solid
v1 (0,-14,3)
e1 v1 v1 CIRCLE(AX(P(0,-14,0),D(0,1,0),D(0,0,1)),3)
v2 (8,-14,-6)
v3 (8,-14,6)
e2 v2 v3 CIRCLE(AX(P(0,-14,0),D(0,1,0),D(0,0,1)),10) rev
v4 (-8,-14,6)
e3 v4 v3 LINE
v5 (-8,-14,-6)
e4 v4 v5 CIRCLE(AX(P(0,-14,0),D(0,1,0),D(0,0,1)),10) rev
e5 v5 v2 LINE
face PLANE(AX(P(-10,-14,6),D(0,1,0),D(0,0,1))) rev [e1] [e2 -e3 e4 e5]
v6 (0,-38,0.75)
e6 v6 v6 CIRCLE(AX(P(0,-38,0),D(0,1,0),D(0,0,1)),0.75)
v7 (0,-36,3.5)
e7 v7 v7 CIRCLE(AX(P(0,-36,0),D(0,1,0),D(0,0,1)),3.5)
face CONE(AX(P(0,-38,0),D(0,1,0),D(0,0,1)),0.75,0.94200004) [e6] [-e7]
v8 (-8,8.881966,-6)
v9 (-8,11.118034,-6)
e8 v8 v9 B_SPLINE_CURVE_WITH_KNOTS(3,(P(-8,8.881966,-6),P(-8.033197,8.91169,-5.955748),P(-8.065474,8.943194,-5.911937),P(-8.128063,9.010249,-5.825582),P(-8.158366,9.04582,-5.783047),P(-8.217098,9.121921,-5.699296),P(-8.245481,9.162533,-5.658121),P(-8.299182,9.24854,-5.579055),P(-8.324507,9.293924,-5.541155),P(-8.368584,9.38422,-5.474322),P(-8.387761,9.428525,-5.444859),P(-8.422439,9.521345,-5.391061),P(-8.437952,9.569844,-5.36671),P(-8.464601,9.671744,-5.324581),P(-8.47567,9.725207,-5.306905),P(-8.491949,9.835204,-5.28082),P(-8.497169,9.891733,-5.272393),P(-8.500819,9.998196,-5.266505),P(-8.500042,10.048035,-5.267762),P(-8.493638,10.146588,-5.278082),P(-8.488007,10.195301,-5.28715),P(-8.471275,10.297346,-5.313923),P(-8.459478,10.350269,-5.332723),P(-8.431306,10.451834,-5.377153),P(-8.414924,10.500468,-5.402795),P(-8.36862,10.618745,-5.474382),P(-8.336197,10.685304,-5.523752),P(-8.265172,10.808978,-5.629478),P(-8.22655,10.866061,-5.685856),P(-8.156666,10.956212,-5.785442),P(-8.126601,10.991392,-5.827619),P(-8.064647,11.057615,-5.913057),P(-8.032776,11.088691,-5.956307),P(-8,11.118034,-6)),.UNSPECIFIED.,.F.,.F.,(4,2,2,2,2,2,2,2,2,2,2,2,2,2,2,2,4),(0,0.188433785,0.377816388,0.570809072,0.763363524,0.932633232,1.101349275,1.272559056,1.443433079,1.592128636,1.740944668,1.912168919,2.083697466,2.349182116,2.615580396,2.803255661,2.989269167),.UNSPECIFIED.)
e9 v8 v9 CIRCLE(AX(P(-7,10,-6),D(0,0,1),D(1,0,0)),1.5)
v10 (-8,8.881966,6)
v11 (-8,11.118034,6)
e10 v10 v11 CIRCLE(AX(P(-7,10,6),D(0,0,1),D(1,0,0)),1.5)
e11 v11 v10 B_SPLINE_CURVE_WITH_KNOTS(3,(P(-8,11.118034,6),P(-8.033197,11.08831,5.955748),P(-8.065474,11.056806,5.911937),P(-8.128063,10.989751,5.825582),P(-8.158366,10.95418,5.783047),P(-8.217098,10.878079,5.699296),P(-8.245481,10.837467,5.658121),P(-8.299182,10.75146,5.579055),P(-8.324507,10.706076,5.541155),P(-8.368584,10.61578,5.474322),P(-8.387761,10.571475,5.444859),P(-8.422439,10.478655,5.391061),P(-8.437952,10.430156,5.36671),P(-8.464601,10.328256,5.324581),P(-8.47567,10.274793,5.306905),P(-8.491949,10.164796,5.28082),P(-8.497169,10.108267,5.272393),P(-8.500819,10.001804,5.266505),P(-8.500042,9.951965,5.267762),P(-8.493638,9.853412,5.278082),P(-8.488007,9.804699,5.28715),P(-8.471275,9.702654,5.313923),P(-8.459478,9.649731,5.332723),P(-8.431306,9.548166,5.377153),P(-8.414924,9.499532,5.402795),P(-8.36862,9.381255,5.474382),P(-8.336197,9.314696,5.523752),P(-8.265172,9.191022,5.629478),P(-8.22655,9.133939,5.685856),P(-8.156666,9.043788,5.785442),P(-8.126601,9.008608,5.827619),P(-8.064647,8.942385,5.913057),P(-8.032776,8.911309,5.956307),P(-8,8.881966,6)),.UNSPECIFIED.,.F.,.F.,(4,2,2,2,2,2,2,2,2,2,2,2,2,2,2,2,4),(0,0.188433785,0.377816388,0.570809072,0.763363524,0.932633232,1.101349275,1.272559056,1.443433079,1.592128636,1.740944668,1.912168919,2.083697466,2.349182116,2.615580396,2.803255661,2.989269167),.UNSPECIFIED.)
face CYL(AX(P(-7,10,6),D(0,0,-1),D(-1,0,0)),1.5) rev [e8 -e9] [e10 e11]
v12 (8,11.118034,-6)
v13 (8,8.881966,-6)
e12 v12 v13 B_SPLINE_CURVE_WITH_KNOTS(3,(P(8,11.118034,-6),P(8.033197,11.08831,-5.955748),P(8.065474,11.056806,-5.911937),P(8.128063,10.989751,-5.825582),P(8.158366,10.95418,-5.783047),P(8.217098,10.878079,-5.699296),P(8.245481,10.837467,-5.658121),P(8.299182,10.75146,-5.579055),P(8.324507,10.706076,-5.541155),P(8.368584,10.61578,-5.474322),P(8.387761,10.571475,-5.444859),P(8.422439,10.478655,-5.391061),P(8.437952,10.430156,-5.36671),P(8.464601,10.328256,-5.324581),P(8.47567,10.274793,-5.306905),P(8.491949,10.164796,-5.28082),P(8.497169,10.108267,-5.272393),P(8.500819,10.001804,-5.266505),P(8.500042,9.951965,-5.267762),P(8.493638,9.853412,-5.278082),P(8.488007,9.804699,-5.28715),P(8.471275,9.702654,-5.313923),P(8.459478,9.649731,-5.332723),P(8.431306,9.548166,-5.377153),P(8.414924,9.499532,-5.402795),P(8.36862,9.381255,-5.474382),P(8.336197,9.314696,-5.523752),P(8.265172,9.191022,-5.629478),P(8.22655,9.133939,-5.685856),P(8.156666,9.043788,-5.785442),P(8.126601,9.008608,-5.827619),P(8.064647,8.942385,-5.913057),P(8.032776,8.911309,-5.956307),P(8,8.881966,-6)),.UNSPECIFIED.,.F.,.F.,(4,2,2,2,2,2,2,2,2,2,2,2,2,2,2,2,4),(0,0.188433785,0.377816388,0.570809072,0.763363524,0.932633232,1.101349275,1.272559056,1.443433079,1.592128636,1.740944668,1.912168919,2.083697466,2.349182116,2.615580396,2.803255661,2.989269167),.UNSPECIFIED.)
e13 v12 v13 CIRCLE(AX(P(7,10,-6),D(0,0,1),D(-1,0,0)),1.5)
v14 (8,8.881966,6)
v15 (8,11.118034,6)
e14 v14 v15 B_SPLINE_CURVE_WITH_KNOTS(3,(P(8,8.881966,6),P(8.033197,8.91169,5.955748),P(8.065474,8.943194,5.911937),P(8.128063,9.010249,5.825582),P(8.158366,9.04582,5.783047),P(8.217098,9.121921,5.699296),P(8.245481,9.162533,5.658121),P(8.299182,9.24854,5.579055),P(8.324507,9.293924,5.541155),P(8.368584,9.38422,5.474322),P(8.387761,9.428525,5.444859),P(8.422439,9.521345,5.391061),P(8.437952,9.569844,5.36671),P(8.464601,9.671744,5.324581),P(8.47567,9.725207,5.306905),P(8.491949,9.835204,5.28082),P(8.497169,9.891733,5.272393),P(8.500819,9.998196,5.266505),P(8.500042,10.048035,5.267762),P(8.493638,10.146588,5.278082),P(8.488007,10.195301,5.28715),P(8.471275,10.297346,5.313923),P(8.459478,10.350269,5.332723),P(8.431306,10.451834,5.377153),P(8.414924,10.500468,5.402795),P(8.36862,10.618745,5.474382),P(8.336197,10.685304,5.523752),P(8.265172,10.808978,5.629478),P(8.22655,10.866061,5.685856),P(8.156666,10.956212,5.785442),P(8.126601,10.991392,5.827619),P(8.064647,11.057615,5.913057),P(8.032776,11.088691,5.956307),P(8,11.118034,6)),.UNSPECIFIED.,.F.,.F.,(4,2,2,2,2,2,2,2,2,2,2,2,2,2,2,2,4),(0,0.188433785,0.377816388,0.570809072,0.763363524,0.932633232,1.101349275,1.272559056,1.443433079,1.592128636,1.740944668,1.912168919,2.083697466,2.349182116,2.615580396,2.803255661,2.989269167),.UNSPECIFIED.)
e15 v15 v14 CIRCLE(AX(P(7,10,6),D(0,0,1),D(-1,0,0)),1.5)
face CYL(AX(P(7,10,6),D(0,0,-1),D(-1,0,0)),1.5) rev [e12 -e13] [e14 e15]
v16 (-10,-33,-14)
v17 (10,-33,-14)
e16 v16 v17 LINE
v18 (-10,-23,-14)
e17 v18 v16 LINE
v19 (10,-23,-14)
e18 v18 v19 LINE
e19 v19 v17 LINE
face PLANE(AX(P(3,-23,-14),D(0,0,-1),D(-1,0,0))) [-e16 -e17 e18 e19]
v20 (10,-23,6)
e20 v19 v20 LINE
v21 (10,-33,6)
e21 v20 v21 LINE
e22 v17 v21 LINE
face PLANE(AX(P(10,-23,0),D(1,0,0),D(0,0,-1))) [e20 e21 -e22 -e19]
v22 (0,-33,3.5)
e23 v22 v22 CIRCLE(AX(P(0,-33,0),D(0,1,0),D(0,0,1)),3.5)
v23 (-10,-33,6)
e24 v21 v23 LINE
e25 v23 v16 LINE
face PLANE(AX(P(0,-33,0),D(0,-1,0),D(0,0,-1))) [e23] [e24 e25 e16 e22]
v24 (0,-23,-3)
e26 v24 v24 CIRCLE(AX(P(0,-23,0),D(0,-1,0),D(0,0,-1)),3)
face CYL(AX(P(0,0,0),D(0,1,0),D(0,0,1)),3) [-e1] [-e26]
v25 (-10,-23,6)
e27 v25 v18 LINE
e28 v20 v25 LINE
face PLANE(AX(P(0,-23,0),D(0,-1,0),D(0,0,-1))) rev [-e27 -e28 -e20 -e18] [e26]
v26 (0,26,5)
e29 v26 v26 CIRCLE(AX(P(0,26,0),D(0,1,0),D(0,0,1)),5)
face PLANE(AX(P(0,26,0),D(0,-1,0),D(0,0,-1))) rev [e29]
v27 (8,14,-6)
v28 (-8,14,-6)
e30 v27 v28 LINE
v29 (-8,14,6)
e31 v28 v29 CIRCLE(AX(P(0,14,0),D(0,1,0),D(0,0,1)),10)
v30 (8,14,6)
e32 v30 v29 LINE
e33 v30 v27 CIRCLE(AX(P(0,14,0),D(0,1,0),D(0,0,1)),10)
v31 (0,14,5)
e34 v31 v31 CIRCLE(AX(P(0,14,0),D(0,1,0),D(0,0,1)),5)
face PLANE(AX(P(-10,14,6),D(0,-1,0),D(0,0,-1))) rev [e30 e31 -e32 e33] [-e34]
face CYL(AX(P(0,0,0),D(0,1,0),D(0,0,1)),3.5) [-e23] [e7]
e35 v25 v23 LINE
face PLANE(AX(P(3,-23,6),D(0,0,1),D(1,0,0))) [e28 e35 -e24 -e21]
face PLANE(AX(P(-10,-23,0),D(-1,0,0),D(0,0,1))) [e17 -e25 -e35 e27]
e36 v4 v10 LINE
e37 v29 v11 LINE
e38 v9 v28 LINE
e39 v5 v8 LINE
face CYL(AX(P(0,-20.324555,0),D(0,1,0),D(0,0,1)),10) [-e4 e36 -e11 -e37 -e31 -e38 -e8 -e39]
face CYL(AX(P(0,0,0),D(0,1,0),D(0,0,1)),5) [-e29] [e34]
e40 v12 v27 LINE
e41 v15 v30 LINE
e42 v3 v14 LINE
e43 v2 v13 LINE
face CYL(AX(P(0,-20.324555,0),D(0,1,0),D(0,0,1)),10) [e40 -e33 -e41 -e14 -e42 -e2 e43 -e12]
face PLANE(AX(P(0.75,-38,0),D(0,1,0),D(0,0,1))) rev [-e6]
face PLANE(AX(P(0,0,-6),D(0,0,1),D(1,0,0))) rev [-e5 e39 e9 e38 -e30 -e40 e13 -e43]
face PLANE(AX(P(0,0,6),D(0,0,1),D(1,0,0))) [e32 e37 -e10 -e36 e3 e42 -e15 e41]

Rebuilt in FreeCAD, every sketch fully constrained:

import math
import FreeCAD as App
import Part
import Sketcher
from FreeCAD import Vector
Q = App.Units.Quantity

doc = App.newDocument("Part")
body = doc.addObject("PartDesign::Body", "Body")

# Sketch on XY plane
sketch1 = body.newObject("Sketcher::SketchObject", "Sketch")
sketch1.AttachmentSupport = (doc.getObject("XY_Plane"), [""])
sketch1.MapMode = "FlatFace"
sketch1.addGeometry([
    Part.LineSegment(Vector(-10, 14, 0), Vector(-10, -14, 0)),  # 0
    Part.LineSegment(Vector(-10, -14, 0), Vector(10, -14, 0)),  # 1
    Part.LineSegment(Vector(10, -14, 0), Vector(10, 14, 0)),  # 2
    Part.LineSegment(Vector(10, 14, 0), Vector(-10, 14, 0)),  # 3
    Part.Circle(Vector(-7, 10, 0), Vector(0, 0, 1), 1.5),  # 4
    Part.Circle(Vector(7, 10, 0), Vector(0, 0, 1), 1.5),  # 5
], False)
sketch1.addConstraint([
    Sketcher.Constraint("Coincident", 0, 2, 1, 1),
    Sketcher.Constraint("Coincident", 1, 2, 2, 1),
    Sketcher.Constraint("Coincident", 2, 2, 3, 1),
    Sketcher.Constraint("Coincident", 3, 2, 0, 1),
    Sketcher.Constraint("Vertical", 0),
    Sketcher.Constraint("Horizontal", 1),
    Sketcher.Constraint("Vertical", 2),
    Sketcher.Constraint("Horizontal", 3),
    Sketcher.Constraint("Equal", 4, 5),
    Sketcher.Constraint("Symmetric", 0, 2, 2, 2, -1, 1),
    Sketcher.Constraint("Symmetric", 4, 3, 5, 3, -2),
    Sketcher.Constraint("Diameter", 4, Q("3 mm")),
    Sketcher.Constraint("DistanceX", 1, 1, 1, 2, Q("20 mm")),
    Sketcher.Constraint("DistanceY", 0, 2, 0, 1, Q("28 mm")),
    Sketcher.Constraint("DistanceX", 4, 3, -1, 1, Q("7 mm")),
    Sketcher.Constraint("DistanceY", -1, 1, 4, 3, Q("10 mm")),
])
pad1 = body.newObject("PartDesign::Pad", "Pad")
pad1.Profile = sketch1
pad1.Length = 12
pad1.Midplane = True

# Sketch on XY plane
sketch2 = body.newObject("Sketcher::SketchObject", "Sketch001")
sketch2.AttachmentSupport = (doc.getObject("XY_Plane"), [""])
sketch2.MapMode = "FlatFace"
sketch2.addGeometry([
    Part.LineSegment(Vector(3, -33, 0), Vector(3, -14, 0)),  # 0
    Part.LineSegment(Vector(3, -14, 0), Vector(0, -14, 0)),  # 1
    Part.LineSegment(Vector(0, -14, 0), Vector(0, -38, 0)),  # 2
    Part.LineSegment(Vector(0, -38, 0), Vector(0.8, -38, 0)),  # 3
    Part.LineSegment(Vector(0.8, -38, 0), Vector(3.5, -36, 0)),  # 4
    Part.LineSegment(Vector(3.5, -36, 0), Vector(3.5, -33, 0)),  # 5
    Part.LineSegment(Vector(3.5, -33, 0), Vector(3, -33, 0)),  # 6
    Part.LineSegment(Vector(0, 26, 0), Vector(0, 14, 0)),  # 7
    Part.LineSegment(Vector(0, 14, 0), Vector(5, 14, 0)),  # 8
    Part.LineSegment(Vector(5, 14, 0), Vector(5, 26, 0)),  # 9
    Part.LineSegment(Vector(5, 26, 0), Vector(0, 26, 0)),  # 10
], False)
sketch2.addConstraint([
    Sketcher.Constraint("Coincident", 0, 2, 1, 1),
    Sketcher.Constraint("Coincident", 1, 2, 2, 1),
    Sketcher.Constraint("Coincident", 2, 2, 3, 1),
    Sketcher.Constraint("Coincident", 3, 2, 4, 1),
    Sketcher.Constraint("Coincident", 4, 2, 5, 1),
    Sketcher.Constraint("Coincident", 5, 2, 6, 1),
    Sketcher.Constraint("Coincident", 6, 2, 0, 1),
    Sketcher.Constraint("Coincident", 7, 2, 8, 1),
    Sketcher.Constraint("Coincident", 8, 2, 9, 1),
    Sketcher.Constraint("Coincident", 9, 2, 10, 1),
    Sketcher.Constraint("Coincident", 10, 2, 7, 1),
    Sketcher.Constraint("Vertical", 0),
    Sketcher.Constraint("Horizontal", 1),
    Sketcher.Constraint("Vertical", 2),
    Sketcher.Constraint("Horizontal", 3),
    Sketcher.Constraint("Vertical", 5),
    Sketcher.Constraint("Horizontal", 6),
    Sketcher.Constraint("Vertical", 7),
    Sketcher.Constraint("Horizontal", 8),
    Sketcher.Constraint("Vertical", 9),
    Sketcher.Constraint("Horizontal", 10),
    Sketcher.Constraint("Symmetric", 1, 2, 7, 2, -1, 1),
    Sketcher.Constraint("PointOnObject", 1, 2, -2),
    Sketcher.Constraint("Equal", 1, 5),
    Sketcher.Constraint("DistanceX", 1, 2, 1, 1, Q("3 mm")),
    Sketcher.Constraint("DistanceX", 8, 1, 8, 2, Q("5 mm")),
    Sketcher.Constraint("DistanceY", 0, 1, 0, 2, Q("19 mm")),
    Sketcher.Constraint("DistanceY", 2, 2, 2, 1, Q("24 mm")),
    Sketcher.Constraint("DistanceY", 7, 2, 7, 1, Q("12 mm")),
    Sketcher.Constraint("DistanceX", 6, 2, 6, 1, Q("0.5 mm")),
    Sketcher.Constraint("DistanceY", 0, 2, -1, 1, Q("14 mm")),
    Sketcher.Constraint("DistanceX", 3, 1, 3, 2, Q("0.75 mm")),
])
revolution = body.newObject("PartDesign::Revolution", "Revolution")
revolution.Profile = sketch2
revolution.ReferenceAxis = (sketch2, ["V_Axis"])
revolution.Angle = 360

# Sketch on XZ plane
sketch3 = body.newObject("Sketcher::SketchObject", "Sketch002")
sketch3.AttachmentSupport = (doc.getObject("XZ_Plane"), [""])
sketch3.MapMode = "FlatFace"
sketch3.AttachmentOffset = App.Placement(Vector(0, 0, 33), App.Rotation())
sketch3.addGeometry([
    Part.LineSegment(Vector(-10, -14, 0), Vector(-10, 6, 0)),
    Part.LineSegment(Vector(-10, 6, 0), Vector(10, 6, 0)),
    Part.LineSegment(Vector(10, 6, 0), Vector(10, -14, 0)),
    Part.LineSegment(Vector(10, -14, 0), Vector(-10, -14, 0)),
], False)
sketch3.addConstraint([
    Sketcher.Constraint("Coincident", 0, 2, 1, 1),
    Sketcher.Constraint("Coincident", 1, 2, 2, 1),
    Sketcher.Constraint("Coincident", 2, 2, 3, 1),
    Sketcher.Constraint("Coincident", 3, 2, 0, 1),
    Sketcher.Constraint("Vertical", 0),
    Sketcher.Constraint("Horizontal", 1),
    Sketcher.Constraint("Vertical", 2),
    Sketcher.Constraint("Horizontal", 3),
    Sketcher.Constraint("Equal", 3, 0),
    Sketcher.Constraint("DistanceX", 1, 1, 1, 2, Q("20 mm")),
    Sketcher.Constraint("DistanceX", 0, 2, -1, 1, Q("10 mm")),
    Sketcher.Constraint("DistanceY", -1, 1, 0, 2, Q("6 mm")),
])
pad2 = body.newObject("PartDesign::Pad", "Pad001")
pad2.Profile = sketch3
pad2.Length = 10
pad2.Reversed = True

# Sketch on XZ plane
sketch4 = body.newObject("Sketcher::SketchObject", "Sketch003")
sketch4.AttachmentSupport = (doc.getObject("XZ_Plane"), [""])
sketch4.MapMode = "FlatFace"
sketch4.AttachmentOffset = App.Placement(Vector(0, 0, -14), App.Rotation())
sketch4.addGeometry([
    Part.ArcOfCircle(Part.Circle(Vector(0, 0, 0), Vector(0, 0, 1), 10), math.radians(180), math.radians(217)),  # 0
    Part.LineSegment(Vector(-8, -6, 0), Vector(-10, -6, 0)),  # 1
    Part.LineSegment(Vector(-10, -6, 0), Vector(-10, 0, 0)),  # 2
    Part.ArcOfCircle(Part.Circle(Vector(0, 0, 0), Vector(0, 0, 1), 10), math.radians(143), math.radians(180)),  # 3
    Part.LineSegment(Vector(-10, 0, 0), Vector(-10, 6, 0)),  # 4
    Part.LineSegment(Vector(-10, 6, 0), Vector(-8, 6, 0)),  # 5
    Part.LineSegment(Vector(10, 6, 0), Vector(10, 0, 0)),  # 6
    Part.ArcOfCircle(Part.Circle(Vector(0, 0, 0), Vector(0, 0, 1), 10), math.radians(0), math.radians(37)),  # 7
    Part.LineSegment(Vector(8, 6, 0), Vector(10, 6, 0)),  # 8
    Part.LineSegment(Vector(10, -6, 0), Vector(8, -6, 0)),  # 9
    Part.ArcOfCircle(Part.Circle(Vector(0, 0, 0), Vector(0, 0, 1), 10), math.radians(-37), math.radians(0)),  # 10
    Part.LineSegment(Vector(10, 0, 0), Vector(10, -6, 0)),  # 11
], False)
sketch4.addConstraint([
    Sketcher.Constraint("Coincident", 0, 2, 1, 1),
    Sketcher.Constraint("Coincident", 1, 2, 2, 1),
    Sketcher.Constraint("Tangent", 2, 2, 0, 1),
    Sketcher.Constraint("Tangent", 3, 2, 4, 1),
    Sketcher.Constraint("Coincident", 4, 2, 5, 1),
    Sketcher.Constraint("Coincident", 5, 2, 3, 1),
    Sketcher.Constraint("Tangent", 6, 2, 7, 1),
    Sketcher.Constraint("Coincident", 7, 2, 8, 1),
    Sketcher.Constraint("Coincident", 8, 2, 6, 1),
    Sketcher.Constraint("Coincident", 9, 2, 10, 1),
    Sketcher.Constraint("Tangent", 10, 2, 11, 1),
    Sketcher.Constraint("Coincident", 11, 2, 9, 1),
    Sketcher.Constraint("Horizontal", 1),
    Sketcher.Constraint("Vertical", 2),
    Sketcher.Constraint("Vertical", 4),
    Sketcher.Constraint("Horizontal", 5),
    Sketcher.Constraint("Vertical", 6),
    Sketcher.Constraint("Horizontal", 8),
    Sketcher.Constraint("Horizontal", 9),
    Sketcher.Constraint("Vertical", 11),
    Sketcher.Constraint("Coincident", 0, 3, -1, 1),
    Sketcher.Constraint("Coincident", 3, 3, -1, 1),
    Sketcher.Constraint("Coincident", 7, 3, -1, 1),
    Sketcher.Constraint("Coincident", 10, 3, -1, 1),
    Sketcher.Constraint("Equal", 0, 3),
    Sketcher.Constraint("Equal", 3, 7),
    Sketcher.Constraint("Equal", 7, 10),
    Sketcher.Constraint("Horizontal", 5, 2, 7, 2),
    Sketcher.Constraint("Horizontal", 1, 2, 9, 2),
    Sketcher.Constraint("Vertical", 0, 2, 5, 2),
    Sketcher.Constraint("Radius", 0, Q("10 mm")),
    Sketcher.Constraint("DistanceX", 1, 2, 1, 1, Q("2 mm")),
])
pocket1 = body.newObject("PartDesign::Pocket", "Pocket")
pocket1.Profile = sketch4
pocket1.Length = 28
pocket1.Reversed = True

doc.recompute()
